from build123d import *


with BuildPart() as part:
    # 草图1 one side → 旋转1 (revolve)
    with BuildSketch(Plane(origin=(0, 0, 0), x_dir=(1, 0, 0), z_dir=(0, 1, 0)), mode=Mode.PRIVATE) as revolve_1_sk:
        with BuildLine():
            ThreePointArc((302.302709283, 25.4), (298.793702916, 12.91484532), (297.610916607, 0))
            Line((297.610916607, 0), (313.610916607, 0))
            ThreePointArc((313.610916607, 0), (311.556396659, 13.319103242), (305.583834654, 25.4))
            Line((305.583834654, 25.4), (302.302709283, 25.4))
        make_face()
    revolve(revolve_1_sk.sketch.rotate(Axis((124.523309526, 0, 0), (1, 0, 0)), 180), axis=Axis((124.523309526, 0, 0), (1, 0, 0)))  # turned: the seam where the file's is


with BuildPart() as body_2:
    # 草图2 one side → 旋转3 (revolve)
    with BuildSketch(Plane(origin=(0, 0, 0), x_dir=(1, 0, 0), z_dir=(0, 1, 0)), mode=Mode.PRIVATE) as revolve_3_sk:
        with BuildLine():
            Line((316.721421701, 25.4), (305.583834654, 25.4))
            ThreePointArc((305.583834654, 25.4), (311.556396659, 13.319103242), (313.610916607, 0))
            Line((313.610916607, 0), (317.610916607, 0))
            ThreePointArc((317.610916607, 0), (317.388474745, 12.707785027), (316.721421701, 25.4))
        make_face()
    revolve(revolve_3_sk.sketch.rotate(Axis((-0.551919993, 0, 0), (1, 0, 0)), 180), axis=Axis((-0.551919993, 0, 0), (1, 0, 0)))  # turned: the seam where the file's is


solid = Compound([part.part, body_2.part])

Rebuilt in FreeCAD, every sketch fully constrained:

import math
import FreeCAD as App
import Part
import Sketcher
from FreeCAD import Vector

doc = App.newDocument("Part")
body = doc.addObject("PartDesign::Body", "Body")

# Sketch on XZ plane
sketch1 = body.newObject("Sketcher::SketchObject", "Sketch")
sketch1.AttachmentSupport = (doc.getObject("XZ_Plane"), [""])
sketch1.MapMode = "FlatFace"
sketch1.addGeometry(Part.ArcOfCircle(Part.Circle(Vector(368.710917, 0, 0), Vector(0, 0, 1), 71.1), math.radians(-180), math.radians(-159.069005)), False)
sketch1.addGeometry(Part.LineSegment(Vector(297.610917, 0, 0), Vector(313.610917, 0, 0)), False)
sketch1.addGeometry(Part.ArcOfCircle(Part.Circle(Vector(269.410917, 0, 0), Vector(0, 0, 1), 44.2), math.radians(-35.07587), math.radians(0)), False)
sketch1.addGeometry(Part.LineSegment(Vector(305.583835, -25.4, 0), Vector(302.302709, -25.4, 0)), False)
sketch1.addConstraint(Sketcher.Constraint("Coincident", 0, 1, 1, 1))
sketch1.addConstraint(Sketcher.Constraint("Coincident", 1, 2, 2, 2))
sketch1.addConstraint(Sketcher.Constraint("Coincident", 2, 1, 3, 1))
sketch1.addConstraint(Sketcher.Constraint("Coincident", 3, 2, 0, 2))
sketch1.addConstraint(Sketcher.Constraint("Horizontal", 1))
sketch1.addConstraint(Sketcher.Constraint("Horizontal", 3))
sketch1.addConstraint(Sketcher.Constraint("PointOnObject", 0, 3, -1))
sketch1.addConstraint(Sketcher.Constraint("PointOnObject", 2, 3, -1))
sketch1.addConstraint(Sketcher.Constraint("PointOnObject", 0, 1, -1))
sketch1.addConstraint(Sketcher.Constraint("Radius", 0, 71.1))
sketch1.addConstraint(Sketcher.Constraint("Radius", 2, 44.2))
sketch1.addConstraint(Sketcher.Constraint("DistanceX", 1, 1, 1, 2, 16.0))
sketch1.addConstraint(Sketcher.Constraint("DistanceY", 2, 1, -1, 1, 25.4))
sketch1.addConstraint(Sketcher.Constraint("DistanceX", -1, 1, 3, 2, 302.302709))
revolution = body.newObject("PartDesign::Revolution", "Revolution")
revolution.Profile = sketch1
revolution.ReferenceAxis = (sketch1, ["H_Axis"])
revolution.Angle = 360
body2 = doc.addObject("PartDesign::Body", "Body001")

# Sketch on XZ plane
sketch2 = body2.newObject("Sketcher::SketchObject", "Sketch001")
sketch2.AttachmentSupport = (doc.getObject("XZ_Plane001"), [""])
sketch2.MapMode = "FlatFace"
sketch2.addGeometry(Part.LineSegment(Vector(316.721422, -25.4, 0), Vector(305.583835, -25.4, 0)), False)
sketch2.addGeometry(Part.ArcOfCircle(Part.Circle(Vector(269.410917, 0, 0), Vector(0, 0, 1), 44.2), math.radians(-35.07587), math.radians(0)), False)
sketch2.addGeometry(Part.LineSegment(Vector(313.610917, 0, 0), Vector(317.610917, 0, 0)), False)
sketch2.addGeometry(Part.ArcOfCircle(Part.Circle(Vector(-45.489083, 0, 0), Vector(0, 0, 1), 363.099999), math.radians(-4.011298), math.radians(0)), False)
sketch2.addConstraint(Sketcher.Constraint("Coincident", 0, 2, 1, 1))
sketch2.addConstraint(Sketcher.Constraint("Coincident", 1, 2, 2, 1))
sketch2.addConstraint(Sketcher.Constraint("Coincident", 2, 2, 3, 2))
sketch2.addConstraint(Sketcher.Constraint("Coincident", 3, 1, 0, 1))
sketch2.addConstraint(Sketcher.Constraint("Horizontal", 0))
sketch2.addConstraint(Sketcher.Constraint("Horizontal", 2))
sketch2.addConstraint(Sketcher.Constraint("PointOnObject", 1, 3, -1))
sketch2.addConstraint(Sketcher.Constraint("PointOnObject", 3, 3, -1))
sketch2.addConstraint(Sketcher.Constraint("PointOnObject", 1, 2, -1))
sketch2.addConstraint(Sketcher.Constraint("Radius", 1, 44.2))
sketch2.addConstraint(Sketcher.Constraint("Radius", 3, 363.099999))
sketch2.addConstraint(Sketcher.Constraint("DistanceX", 2, 1, 2, 2, 4.0))
sketch2.addConstraint(Sketcher.Constraint("DistanceY", 0, 2, -1, 1, 25.4))
sketch2.addConstraint(Sketcher.Constraint("DistanceX", -1, 1, 3, 1, 316.721422))
revolution2 = body2.newObject("PartDesign::Revolution", "Revolution001")
revolution2.Profile = sketch2
revolution2.ReferenceAxis = (sketch2, ["H_Axis"])
revolution2.Angle = 360

doc.recompute()
